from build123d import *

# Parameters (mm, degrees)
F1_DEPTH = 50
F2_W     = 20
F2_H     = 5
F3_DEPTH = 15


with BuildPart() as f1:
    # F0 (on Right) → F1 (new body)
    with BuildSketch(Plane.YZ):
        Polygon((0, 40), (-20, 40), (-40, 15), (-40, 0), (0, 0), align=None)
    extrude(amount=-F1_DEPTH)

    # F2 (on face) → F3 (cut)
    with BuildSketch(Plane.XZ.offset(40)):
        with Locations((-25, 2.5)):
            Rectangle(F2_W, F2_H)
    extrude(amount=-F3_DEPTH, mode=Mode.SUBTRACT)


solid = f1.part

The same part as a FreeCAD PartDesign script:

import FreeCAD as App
import Part
import Sketcher


def add_polygon(sketch, points):
    """Adds a closed chain of lines whose ends are joined by coincident constraints."""
    first, n = sketch.GeometryCount, len(points)
    for a, b in zip(points, points[1:] + points[:1]):
        sketch.addGeometry(Part.LineSegment(App.Vector(*a, 0), App.Vector(*b, 0)), False)
    for i in range(n):
        sketch.addConstraint(Sketcher.Constraint("Coincident", first + i, 2, first + (i + 1) % n, 1))

doc = App.newDocument("Part")
params = doc.addObject("Spreadsheet::Sheet", "Params")
for row, (alias, value) in enumerate([
    ("sketch1_width", "20 mm"),
    ("sketch1_width2", "40 mm"),
    ("sketch1_height", "15 mm"),
    ("pad1_length", "50 mm"),
    ("sketch2_width", "20 mm"),
    ("sketch2_height", "5 mm"),
    ("pocket1_length", "15 mm"),
], start=1):
    params.set(f"A{row}", alias)
    params.set(f"B{row}", "=" + value)
    params.setAlias(f"B{row}", alias)

body = doc.addObject("PartDesign::Body", "Body")

# Sketch on YZ plane
sketch1 = body.newObject("Sketcher::SketchObject", "Sketch")
sketch1.AttachmentSupport = (doc.getObject("YZ_Plane"), [""])
sketch1.MapMode = "FlatFace"
add_polygon(sketch1, [(0, 40), (-20, 40), (-40, 15), (-40, 0), (0, 0)])  # lines 0-4
sketch1.addConstraint([
    Sketcher.Constraint("Horizontal", 0),
    Sketcher.Constraint("Vertical", 2),
    Sketcher.Constraint("Horizontal", 3),
    Sketcher.Constraint("Vertical", 4),
    Sketcher.Constraint("Coincident", 3, 2, -1, 1),
    Sketcher.Constraint("Equal", 3, 4),
    Sketcher.Constraint("DistanceX", 0, 2, 0, 1, 20.0),
    Sketcher.Constraint("DistanceX", 3, 1, 3, 2, 40.0),
    Sketcher.Constraint("DistanceY", 2, 2, 2, 1, 15.0),
])
sketch1.setExpression("Constraints[11]", "Params.sketch1_width")
sketch1.setExpression("Constraints[12]", "Params.sketch1_width2")
sketch1.setExpression("Constraints[13]", "Params.sketch1_height")
pad1 = body.newObject("PartDesign::Pad", "Pad")
pad1.Profile = sketch1
pad1.setExpression("Length", "Params.pad1_length")
pad1.Reversed = True

# Sketch on XZ plane
sketch2 = body.newObject("Sketcher::SketchObject", "Sketch001")
sketch2.AttachmentSupport = (doc.getObject("XZ_Plane"), [""])
sketch2.MapMode = "FlatFace"
sketch2.AttachmentOffset = App.Placement(App.Vector(0, 0, 40), App.Rotation())
add_polygon(sketch2, [(-35, 5), (-35, 0), (-15, 0), (-15, 5)])  # lines 0-3
sketch2.addConstraint([
    Sketcher.Constraint("Vertical", 0),
    Sketcher.Constraint("Horizontal", 1),
    Sketcher.Constraint("Vertical", 2),
    Sketcher.Constraint("Horizontal", 3),
    Sketcher.Constraint("PointOnObject", 0, 2, -1),
    Sketcher.Constraint("DistanceX", 1, 1, 1, 2, 20.0),
    Sketcher.Constraint("DistanceY", 0, 2, 0, 1, 5.0),
    Sketcher.Constraint("DistanceX", 0, 2, -1, 1, 35.0),
])
sketch2.setExpression("Constraints[9]", "Params.sketch2_width")
sketch2.setExpression("Constraints[10]", "Params.sketch2_height")
pocket1 = body.newObject("PartDesign::Pocket", "Pocket")
pocket1.Profile = sketch2
pocket1.setExpression("Length", "Params.pocket1_length")

doc.recompute()
